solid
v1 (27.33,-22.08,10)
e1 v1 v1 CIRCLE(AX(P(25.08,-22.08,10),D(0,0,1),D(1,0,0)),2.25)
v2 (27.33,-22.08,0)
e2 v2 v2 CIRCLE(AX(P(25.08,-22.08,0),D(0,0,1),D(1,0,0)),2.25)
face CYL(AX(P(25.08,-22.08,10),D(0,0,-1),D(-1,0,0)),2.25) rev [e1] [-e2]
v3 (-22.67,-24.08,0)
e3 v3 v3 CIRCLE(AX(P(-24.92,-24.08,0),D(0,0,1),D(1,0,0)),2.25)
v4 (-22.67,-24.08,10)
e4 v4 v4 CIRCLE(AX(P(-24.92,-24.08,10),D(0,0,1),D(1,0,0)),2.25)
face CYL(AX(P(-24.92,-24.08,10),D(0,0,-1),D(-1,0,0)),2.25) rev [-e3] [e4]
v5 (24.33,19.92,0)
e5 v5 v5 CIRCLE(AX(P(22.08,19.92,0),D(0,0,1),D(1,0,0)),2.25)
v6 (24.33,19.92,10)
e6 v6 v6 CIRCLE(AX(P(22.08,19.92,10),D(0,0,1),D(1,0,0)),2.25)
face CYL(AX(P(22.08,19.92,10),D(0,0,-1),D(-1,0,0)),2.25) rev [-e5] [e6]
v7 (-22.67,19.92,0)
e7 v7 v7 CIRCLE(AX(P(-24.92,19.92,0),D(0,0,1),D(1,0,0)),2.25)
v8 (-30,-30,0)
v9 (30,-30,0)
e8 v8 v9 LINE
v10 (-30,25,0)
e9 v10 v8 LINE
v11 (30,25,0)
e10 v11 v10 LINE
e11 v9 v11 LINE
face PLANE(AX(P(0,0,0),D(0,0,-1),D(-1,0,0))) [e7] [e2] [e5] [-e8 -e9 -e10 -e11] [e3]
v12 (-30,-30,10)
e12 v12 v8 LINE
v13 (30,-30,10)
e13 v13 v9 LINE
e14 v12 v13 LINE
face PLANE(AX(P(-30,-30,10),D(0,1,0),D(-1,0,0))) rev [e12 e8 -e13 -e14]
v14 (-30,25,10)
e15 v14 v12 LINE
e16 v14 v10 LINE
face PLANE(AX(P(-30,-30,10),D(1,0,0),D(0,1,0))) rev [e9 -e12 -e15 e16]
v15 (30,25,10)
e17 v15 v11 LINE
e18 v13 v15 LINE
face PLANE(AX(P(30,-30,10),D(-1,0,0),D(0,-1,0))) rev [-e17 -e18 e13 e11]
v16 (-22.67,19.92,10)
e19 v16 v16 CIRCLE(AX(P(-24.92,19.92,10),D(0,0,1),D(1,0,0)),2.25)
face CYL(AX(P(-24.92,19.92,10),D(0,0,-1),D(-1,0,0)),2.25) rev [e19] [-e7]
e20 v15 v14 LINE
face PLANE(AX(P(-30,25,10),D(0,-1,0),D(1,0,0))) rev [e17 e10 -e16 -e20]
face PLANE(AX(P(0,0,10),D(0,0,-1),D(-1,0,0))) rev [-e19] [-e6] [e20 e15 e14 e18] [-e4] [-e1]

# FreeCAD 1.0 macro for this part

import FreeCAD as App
import Part
import Sketcher
Q = App.Units.Quantity

doc = App.newDocument("Part")
body = doc.addObject("PartDesign::Body", "Body")

# Sketch on XY plane
sketch1 = doc.addObject("Sketcher::SketchObject", "Sketch")
body.addObject(sketch1)
sketch1.AttachmentSupport = (doc.XY_Plane, [""])
sketch1.MapMode = "FlatFace"
sketch1.addGeometry(Part.LineSegment(App.Vector(-30, 25, 0), App.Vector(-30, -30, 0)), False)
sketch1.addGeometry(Part.LineSegment(App.Vector(-30, -30, 0), App.Vector(30, -30, 0)), False)
sketch1.addGeometry(Part.LineSegment(App.Vector(30, -30, 0), App.Vector(30, 25, 0)), False)
sketch1.addGeometry(Part.LineSegment(App.Vector(30, 25, 0), App.Vector(-30, 25, 0)), False)
sketch1.addGeometry(Part.Circle(App.Vector(-24.92, -24.08, 0), App.Vector(0, 0, 1), 2.25), False)
sketch1.addGeometry(Part.Circle(App.Vector(25.08, -22.08, 0), App.Vector(0, 0, 1), 2.25), False)
sketch1.addGeometry(Part.Circle(App.Vector(-24.92, 19.92, 0), App.Vector(0, 0, 1), 2.25), False)
sketch1.addGeometry(Part.Circle(App.Vector(22.08, 19.92, 0), App.Vector(0, 0, 1), 2.25), False)
sketch1.addConstraint(Sketcher.Constraint("Coincident", 0, 2, 1, 1))
sketch1.addConstraint(Sketcher.Constraint("Coincident", 1, 2, 2, 1))
sketch1.addConstraint(Sketcher.Constraint("Coincident", 2, 2, 3, 1))
sketch1.addConstraint(Sketcher.Constraint("Coincident", 3, 2, 0, 1))
sketch1.addConstraint(Sketcher.Constraint("Vertical", 0))
sketch1.addConstraint(Sketcher.Constraint("Horizontal", 1))
sketch1.addConstraint(Sketcher.Constraint("Vertical", 2))
sketch1.addConstraint(Sketcher.Constraint("Horizontal", 3))
sketch1.addConstraint(Sketcher.Constraint("Equal", 4, 5))
sketch1.addConstraint(Sketcher.Constraint("Equal", 5, 6))
sketch1.addConstraint(Sketcher.Constraint("Equal", 6, 7))
sketch1.addConstraint(Sketcher.Constraint("Horizontal", 6, 3, 7, 3))
sketch1.addConstraint(Sketcher.Constraint("Vertical", 4, 3, 6, 3))
sketch1.addConstraint(Sketcher.Constraint("Diameter", 4, Q("4.5 mm")))
sketch1.addConstraint(Sketcher.Constraint("DistanceX", 1, 1, 1, 2, Q("60 mm")))
sketch1.addConstraint(Sketcher.Constraint("DistanceY", 0, 2, 0, 1, Q("55 mm")))
sketch1.addConstraint(Sketcher.Constraint("DistanceX", 0, 2, -1, 1, Q("30 mm")))
sketch1.addConstraint(Sketcher.Constraint("DistanceY", 0, 2, -1, 1, Q("30 mm")))
sketch1.addConstraint(Sketcher.Constraint("DistanceX", 4, 3, 5, 3, Q("50 mm")))
sketch1.addConstraint(Sketcher.Constraint("DistanceY", 4, 3, 5, 3, Q("2 mm")))
sketch1.addConstraint(Sketcher.Constraint("DistanceY", 4, 3, 6, 3, Q("44 mm")))
sketch1.addConstraint(Sketcher.Constraint("DistanceX", 7, 3, 5, 3, Q("3 mm")))
sketch1.addConstraint(Sketcher.Constraint("DistanceX", 4, 3, -1, 1, Q("24.92 mm")))
sketch1.addConstraint(Sketcher.Constraint("DistanceY", 4, 3, -1, 1, Q("24.08 mm")))
pad1 = doc.addObject("PartDesign::Pad", "Pad")
body.addObject(pad1)
pad1.Profile = sketch1
pad1.Length = 10

doc.recompute()
